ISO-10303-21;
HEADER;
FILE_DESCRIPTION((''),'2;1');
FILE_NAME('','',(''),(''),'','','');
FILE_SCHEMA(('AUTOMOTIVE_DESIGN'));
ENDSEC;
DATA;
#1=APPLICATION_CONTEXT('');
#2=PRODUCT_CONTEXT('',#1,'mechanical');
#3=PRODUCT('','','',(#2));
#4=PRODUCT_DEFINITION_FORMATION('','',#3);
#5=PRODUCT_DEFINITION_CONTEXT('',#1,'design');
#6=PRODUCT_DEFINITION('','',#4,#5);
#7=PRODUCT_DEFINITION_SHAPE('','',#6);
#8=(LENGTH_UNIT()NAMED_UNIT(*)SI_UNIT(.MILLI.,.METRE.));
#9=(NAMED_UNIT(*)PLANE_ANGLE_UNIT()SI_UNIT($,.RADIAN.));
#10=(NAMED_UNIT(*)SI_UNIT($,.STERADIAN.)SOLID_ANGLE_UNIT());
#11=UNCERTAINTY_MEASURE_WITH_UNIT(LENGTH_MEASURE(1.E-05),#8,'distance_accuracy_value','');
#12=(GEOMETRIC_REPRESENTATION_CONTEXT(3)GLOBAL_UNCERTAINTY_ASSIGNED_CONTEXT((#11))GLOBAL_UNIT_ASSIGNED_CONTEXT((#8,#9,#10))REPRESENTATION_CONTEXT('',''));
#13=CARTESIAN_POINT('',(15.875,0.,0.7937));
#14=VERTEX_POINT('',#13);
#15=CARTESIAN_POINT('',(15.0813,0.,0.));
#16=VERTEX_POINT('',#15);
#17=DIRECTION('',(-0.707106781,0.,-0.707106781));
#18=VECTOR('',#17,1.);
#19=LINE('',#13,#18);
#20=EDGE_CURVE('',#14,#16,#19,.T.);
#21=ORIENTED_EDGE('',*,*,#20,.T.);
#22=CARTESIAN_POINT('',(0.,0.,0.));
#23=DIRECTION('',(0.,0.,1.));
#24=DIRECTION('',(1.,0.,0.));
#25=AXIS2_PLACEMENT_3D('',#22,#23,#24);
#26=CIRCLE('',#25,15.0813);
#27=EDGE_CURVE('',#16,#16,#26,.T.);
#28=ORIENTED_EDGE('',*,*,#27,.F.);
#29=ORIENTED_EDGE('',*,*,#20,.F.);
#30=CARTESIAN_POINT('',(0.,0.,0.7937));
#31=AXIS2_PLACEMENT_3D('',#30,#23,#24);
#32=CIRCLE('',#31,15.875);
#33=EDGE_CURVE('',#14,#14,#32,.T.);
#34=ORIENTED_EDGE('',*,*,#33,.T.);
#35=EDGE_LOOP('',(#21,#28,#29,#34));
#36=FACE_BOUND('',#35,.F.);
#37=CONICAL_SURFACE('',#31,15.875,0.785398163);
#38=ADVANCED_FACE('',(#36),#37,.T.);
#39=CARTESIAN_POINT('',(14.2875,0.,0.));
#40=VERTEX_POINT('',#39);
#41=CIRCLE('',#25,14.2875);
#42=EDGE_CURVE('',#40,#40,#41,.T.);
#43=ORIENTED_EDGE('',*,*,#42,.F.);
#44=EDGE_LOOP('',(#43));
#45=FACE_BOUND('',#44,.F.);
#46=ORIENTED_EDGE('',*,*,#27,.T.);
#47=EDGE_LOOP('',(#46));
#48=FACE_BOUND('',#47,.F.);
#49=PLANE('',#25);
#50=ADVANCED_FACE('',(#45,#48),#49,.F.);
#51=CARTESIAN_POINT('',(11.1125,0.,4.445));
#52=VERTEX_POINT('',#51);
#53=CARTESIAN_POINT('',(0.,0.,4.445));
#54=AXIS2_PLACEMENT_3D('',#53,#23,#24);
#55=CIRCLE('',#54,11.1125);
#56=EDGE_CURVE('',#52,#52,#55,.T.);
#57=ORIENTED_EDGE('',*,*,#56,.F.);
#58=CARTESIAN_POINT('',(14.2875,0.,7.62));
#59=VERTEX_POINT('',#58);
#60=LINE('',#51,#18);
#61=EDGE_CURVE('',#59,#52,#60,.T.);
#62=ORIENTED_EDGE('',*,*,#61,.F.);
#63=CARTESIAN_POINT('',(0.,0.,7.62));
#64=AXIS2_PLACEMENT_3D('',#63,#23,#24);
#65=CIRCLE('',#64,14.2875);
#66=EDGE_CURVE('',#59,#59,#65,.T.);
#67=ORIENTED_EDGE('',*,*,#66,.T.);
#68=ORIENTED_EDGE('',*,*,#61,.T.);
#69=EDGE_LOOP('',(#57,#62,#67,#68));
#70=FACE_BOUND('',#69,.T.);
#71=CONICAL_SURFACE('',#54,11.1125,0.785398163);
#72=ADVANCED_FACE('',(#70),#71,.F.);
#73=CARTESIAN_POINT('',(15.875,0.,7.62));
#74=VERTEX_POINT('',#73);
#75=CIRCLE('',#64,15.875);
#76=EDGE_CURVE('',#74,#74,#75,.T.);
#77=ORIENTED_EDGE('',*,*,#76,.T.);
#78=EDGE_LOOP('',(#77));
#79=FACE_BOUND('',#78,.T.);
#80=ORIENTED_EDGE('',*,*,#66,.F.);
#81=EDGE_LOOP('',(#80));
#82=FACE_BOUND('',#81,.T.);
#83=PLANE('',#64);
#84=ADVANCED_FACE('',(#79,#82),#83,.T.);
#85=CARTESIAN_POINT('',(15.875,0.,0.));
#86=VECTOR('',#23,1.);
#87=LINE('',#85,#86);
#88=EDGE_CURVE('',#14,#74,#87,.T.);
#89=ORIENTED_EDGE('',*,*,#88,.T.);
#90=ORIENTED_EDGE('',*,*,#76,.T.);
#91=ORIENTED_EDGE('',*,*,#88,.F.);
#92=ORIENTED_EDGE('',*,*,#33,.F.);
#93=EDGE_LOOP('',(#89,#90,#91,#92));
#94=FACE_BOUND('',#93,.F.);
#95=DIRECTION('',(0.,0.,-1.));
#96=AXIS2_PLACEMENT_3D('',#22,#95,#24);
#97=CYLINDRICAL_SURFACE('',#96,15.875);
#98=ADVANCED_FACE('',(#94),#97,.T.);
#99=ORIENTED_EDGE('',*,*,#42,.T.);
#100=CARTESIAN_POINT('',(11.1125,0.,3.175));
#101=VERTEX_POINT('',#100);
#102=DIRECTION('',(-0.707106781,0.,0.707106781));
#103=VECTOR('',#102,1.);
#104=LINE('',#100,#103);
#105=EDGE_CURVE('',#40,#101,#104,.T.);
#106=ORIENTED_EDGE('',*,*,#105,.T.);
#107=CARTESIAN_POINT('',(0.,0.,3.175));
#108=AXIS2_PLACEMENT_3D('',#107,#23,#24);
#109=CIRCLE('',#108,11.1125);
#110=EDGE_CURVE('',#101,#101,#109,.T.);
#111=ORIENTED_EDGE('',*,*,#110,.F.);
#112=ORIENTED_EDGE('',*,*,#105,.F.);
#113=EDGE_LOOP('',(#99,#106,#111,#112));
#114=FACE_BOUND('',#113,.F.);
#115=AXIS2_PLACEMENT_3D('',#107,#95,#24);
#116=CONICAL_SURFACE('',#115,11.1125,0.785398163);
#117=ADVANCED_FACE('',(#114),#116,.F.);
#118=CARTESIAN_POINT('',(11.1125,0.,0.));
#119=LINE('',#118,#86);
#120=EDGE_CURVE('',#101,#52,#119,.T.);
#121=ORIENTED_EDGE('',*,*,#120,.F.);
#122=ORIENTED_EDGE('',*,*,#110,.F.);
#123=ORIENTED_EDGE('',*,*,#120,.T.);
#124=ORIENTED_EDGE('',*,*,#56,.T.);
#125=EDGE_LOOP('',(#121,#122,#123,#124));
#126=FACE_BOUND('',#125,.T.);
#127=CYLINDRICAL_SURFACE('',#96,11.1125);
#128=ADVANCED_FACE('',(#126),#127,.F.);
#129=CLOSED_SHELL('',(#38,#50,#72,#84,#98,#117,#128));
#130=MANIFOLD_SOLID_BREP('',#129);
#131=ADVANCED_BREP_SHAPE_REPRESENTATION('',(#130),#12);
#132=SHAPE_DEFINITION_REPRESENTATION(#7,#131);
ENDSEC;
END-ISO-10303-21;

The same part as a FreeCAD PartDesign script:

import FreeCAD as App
import Part
import Sketcher
from FreeCAD import Vector
Q = App.Units.Quantity


def edges_at(feature, points):
    """Names of the edges that pass closest to the given points."""
    edges = feature.Shape.Edges
    near = lambda p: min(range(len(edges)), key=lambda i: edges[i].distToShape(Part.Vertex(*p))[0])
    return sorted({f"Edge{near(p) + 1}" for p in points})

doc = App.newDocument("Part")
body = doc.addObject("PartDesign::Body", "Body")

# Sketch on XY plane
sketch1 = body.newObject("Sketcher::SketchObject", "Sketch")
sketch1.AttachmentSupport = (doc.getObject("XY_Plane"), [""])
sketch1.MapMode = "FlatFace"
sketch1.addGeometry(Part.Circle(Vector(0, 0, 0), Vector(0, 0, 1), 15.875), False)
sketch1.addGeometry(Part.Circle(Vector(0, 0, 0), Vector(0, 0, 1), 11.1125), False)
sketch1.addConstraint(Sketcher.Constraint("Coincident", 0, 3, -1, 1))
sketch1.addConstraint(Sketcher.Constraint("Coincident", 1, 3, -1, 1))
sketch1.addConstraint(Sketcher.Constraint("Diameter", 0, Q("1.25 in")))
sketch1.addConstraint(Sketcher.Constraint("Diameter", 1, Q("0.875 in")))
pad1 = body.newObject("PartDesign::Pad", "Pad")
pad1.Profile = sketch1
pad1.Length = Q("0.3 in")
doc.recompute()

chamfer = body.newObject("PartDesign::Chamfer", "Chamfer")
chamfer.Base = (pad1, edges_at(pad1, [(-15.875, 0, 0)]))
chamfer.Size = Q("0.031248 in")
doc.recompute()

chamfer2 = body.newObject("PartDesign::Chamfer", "Chamfer001")
chamfer2.Base = (chamfer, edges_at(chamfer, [(-11.113, 0, 7.62), (-11.113, 0, 0)]))
chamfer2.Size = Q("0.125 in")

doc.recompute()
